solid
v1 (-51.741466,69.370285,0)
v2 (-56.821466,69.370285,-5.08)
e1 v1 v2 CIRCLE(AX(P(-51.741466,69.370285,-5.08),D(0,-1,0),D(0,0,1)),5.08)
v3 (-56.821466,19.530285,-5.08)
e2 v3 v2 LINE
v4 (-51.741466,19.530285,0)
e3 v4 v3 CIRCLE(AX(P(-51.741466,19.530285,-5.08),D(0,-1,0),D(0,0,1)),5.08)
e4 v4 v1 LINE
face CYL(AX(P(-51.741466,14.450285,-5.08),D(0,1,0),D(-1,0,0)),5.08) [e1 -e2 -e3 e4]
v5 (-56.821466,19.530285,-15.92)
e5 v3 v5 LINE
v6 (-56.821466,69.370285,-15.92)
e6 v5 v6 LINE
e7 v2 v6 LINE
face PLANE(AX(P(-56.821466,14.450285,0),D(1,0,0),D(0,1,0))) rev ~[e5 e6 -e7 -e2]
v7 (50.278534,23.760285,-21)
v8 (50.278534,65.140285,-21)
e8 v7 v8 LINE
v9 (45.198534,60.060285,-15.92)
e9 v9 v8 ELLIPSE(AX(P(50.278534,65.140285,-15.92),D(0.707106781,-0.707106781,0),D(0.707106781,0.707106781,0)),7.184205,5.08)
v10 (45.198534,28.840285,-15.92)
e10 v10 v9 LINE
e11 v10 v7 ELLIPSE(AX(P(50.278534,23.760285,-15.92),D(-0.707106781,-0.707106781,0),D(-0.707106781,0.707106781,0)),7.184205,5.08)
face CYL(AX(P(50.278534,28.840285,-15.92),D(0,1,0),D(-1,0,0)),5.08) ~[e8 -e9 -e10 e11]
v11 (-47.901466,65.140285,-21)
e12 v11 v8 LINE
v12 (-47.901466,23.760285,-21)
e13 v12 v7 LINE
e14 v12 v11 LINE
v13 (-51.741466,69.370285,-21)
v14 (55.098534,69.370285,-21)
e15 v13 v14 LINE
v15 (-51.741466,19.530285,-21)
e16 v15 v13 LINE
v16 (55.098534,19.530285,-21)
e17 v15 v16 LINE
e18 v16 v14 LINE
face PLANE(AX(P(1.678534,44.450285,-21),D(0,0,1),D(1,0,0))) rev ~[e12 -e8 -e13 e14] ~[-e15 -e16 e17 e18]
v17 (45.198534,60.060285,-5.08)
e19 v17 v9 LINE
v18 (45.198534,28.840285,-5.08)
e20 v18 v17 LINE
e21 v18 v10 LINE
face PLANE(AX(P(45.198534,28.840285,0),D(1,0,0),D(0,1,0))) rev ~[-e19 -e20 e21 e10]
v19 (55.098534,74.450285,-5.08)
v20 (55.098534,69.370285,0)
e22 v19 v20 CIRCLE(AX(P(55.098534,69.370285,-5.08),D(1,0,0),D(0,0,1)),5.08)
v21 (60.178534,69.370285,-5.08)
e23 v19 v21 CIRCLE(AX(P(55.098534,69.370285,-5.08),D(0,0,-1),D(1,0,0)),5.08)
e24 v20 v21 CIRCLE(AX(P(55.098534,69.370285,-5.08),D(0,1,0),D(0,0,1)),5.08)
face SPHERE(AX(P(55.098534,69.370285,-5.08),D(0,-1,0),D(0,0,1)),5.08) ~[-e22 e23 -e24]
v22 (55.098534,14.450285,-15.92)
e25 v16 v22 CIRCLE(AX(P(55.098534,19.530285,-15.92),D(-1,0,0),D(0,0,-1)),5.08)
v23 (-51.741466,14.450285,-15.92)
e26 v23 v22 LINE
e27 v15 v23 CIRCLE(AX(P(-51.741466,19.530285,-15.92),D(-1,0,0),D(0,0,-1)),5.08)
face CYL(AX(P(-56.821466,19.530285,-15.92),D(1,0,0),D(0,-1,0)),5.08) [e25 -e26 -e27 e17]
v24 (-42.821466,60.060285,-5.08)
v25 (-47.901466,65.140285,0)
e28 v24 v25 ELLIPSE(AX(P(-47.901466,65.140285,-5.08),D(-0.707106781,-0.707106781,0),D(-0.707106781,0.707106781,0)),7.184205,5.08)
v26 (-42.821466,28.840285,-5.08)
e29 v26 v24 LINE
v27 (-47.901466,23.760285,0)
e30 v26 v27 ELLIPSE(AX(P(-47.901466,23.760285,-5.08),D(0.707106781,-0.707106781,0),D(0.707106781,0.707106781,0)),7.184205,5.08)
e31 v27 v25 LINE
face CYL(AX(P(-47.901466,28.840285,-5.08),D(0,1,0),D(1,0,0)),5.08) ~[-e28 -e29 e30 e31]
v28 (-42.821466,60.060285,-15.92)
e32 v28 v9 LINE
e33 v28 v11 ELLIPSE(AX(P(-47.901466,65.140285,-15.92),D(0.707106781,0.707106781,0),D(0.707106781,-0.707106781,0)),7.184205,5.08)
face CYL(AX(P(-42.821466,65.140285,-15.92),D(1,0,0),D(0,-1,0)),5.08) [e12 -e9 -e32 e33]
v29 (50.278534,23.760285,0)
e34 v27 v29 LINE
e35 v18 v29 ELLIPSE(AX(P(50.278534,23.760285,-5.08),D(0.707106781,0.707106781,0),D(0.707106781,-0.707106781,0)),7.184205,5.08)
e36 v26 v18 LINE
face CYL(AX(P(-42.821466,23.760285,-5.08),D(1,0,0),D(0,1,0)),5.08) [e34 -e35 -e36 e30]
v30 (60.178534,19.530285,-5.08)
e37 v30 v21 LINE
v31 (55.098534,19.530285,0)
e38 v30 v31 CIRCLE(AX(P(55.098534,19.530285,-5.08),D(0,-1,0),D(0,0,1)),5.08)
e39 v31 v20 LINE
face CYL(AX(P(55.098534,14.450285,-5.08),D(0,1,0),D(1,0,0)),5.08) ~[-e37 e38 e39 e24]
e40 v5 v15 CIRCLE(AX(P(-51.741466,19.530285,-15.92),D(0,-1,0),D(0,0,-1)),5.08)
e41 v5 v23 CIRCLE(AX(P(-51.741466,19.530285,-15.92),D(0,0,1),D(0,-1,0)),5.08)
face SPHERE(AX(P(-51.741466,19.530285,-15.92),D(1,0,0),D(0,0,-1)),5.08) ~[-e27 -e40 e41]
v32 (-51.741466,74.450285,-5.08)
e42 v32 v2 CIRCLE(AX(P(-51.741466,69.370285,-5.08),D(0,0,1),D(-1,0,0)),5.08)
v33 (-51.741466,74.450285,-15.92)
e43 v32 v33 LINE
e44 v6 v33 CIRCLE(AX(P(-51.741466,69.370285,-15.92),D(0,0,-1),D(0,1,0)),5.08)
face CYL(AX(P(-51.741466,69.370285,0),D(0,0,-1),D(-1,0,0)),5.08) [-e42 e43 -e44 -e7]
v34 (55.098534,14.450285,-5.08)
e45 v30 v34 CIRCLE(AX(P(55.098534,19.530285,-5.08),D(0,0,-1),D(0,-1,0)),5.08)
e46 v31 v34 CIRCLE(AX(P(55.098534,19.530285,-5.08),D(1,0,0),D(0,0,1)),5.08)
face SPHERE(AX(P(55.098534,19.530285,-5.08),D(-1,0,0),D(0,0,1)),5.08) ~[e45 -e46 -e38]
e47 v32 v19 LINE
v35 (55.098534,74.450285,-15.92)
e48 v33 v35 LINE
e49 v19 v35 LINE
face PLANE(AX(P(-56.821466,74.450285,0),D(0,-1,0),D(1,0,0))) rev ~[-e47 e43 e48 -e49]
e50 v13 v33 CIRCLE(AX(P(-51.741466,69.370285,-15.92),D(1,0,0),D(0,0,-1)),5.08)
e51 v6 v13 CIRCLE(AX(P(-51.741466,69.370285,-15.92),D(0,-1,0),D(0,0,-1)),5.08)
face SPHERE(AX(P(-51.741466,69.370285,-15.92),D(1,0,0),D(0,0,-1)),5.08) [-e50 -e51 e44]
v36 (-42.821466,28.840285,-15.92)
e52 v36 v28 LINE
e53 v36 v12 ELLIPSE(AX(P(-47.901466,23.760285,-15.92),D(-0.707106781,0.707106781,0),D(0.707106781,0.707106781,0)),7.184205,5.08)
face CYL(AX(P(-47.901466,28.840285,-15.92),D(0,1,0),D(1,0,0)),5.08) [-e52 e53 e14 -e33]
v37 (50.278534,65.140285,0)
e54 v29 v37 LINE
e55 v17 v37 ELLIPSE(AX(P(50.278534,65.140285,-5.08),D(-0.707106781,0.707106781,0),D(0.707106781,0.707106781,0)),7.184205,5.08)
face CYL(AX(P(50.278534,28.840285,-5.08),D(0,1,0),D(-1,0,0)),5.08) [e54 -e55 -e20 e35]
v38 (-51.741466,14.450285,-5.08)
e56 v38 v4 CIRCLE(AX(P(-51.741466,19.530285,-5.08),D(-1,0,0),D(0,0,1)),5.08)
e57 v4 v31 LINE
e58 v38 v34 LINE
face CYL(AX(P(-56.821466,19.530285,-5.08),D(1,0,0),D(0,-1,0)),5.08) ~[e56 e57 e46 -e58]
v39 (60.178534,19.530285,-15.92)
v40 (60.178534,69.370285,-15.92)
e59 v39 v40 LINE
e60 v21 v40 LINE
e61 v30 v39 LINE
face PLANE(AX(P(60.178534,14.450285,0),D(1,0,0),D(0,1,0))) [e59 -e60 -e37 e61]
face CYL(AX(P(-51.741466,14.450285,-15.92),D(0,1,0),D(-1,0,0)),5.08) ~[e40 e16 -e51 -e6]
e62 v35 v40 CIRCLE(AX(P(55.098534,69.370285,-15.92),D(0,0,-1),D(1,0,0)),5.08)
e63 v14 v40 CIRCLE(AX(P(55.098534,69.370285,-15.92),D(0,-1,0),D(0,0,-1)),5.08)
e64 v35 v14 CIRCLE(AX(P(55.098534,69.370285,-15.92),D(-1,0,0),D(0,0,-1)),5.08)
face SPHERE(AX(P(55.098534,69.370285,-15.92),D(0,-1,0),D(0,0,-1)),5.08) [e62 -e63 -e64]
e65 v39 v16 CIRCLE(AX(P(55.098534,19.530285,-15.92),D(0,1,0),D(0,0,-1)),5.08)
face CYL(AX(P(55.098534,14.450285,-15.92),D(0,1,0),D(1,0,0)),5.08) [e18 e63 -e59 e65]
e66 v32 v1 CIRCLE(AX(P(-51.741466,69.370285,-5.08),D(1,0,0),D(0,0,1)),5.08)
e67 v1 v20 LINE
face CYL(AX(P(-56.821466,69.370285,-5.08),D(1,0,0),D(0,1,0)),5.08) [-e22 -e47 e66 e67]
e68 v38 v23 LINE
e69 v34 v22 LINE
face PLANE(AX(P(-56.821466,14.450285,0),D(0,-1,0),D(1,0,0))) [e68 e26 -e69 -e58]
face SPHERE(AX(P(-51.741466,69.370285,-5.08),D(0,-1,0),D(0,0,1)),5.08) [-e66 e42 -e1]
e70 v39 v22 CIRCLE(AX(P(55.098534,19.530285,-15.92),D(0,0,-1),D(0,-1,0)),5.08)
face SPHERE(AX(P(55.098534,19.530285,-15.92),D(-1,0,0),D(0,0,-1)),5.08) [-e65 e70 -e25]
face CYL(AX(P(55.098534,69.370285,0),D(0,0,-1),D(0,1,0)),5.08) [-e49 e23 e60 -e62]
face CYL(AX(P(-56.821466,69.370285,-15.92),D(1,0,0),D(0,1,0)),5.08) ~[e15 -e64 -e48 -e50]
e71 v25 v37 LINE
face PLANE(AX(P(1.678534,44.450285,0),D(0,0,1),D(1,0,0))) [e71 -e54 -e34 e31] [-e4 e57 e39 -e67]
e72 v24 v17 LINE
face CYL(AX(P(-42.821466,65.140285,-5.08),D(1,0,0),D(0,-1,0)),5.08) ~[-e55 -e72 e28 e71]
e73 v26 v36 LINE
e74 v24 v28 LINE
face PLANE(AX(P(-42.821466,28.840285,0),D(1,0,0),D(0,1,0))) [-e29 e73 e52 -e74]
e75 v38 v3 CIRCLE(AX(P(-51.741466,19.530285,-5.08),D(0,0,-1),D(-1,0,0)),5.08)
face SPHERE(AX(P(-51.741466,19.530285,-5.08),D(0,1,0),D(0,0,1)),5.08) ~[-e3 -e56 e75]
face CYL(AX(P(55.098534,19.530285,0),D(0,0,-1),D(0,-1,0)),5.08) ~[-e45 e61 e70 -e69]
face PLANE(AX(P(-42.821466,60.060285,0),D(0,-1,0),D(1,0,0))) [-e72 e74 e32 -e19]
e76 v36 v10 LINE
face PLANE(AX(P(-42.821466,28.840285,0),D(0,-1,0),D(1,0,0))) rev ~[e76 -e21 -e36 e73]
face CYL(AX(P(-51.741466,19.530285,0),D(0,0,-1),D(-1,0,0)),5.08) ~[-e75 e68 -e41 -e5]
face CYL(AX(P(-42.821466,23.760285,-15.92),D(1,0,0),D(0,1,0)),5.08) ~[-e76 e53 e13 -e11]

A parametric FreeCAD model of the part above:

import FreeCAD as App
import Part
import Sketcher
Q = App.Units.Quantity


def edges_at(feature, points):
    """Names of the edges that pass closest to the given points."""
    edges = feature.Shape.Edges
    near = lambda p: min(range(len(edges)), key=lambda i: edges[i].distToShape(Part.Vertex(*p))[0])
    return sorted({f"Edge{near(p) + 1}" for p in points})


def add_polygon(sketch, points):
    """Adds a closed chain of lines whose ends are joined by coincident constraints."""
    first, n = sketch.GeometryCount, len(points)
    for a, b in zip(points, points[1:] + points[:1]):
        sketch.addGeometry(Part.LineSegment(App.Vector(*a, 0), App.Vector(*b, 0)), False)
    for i in range(n):
        sketch.addConstraint(Sketcher.Constraint("Coincident", first + i, 2, first + (i + 1) % n, 1))

doc = App.newDocument("Part")
body = doc.addObject("PartDesign::Body", "Body")

# Sketch on XY plane
sketch1 = body.newObject("Sketcher::SketchObject", "Sketch")
sketch1.AttachmentSupport = (doc.getObject("XY_Plane"), [""])
sketch1.MapMode = "FlatFace"
add_polygon(sketch1, [(-57, 74), (-57, 14), (60, 14), (60, 74)])  # lines 0-3
add_polygon(sketch1, [(45, 29), (-43, 29), (-43, 60), (45, 60)])  # lines 4-7
sketch1.addConstraint([
    Sketcher.Constraint("Vertical", 0),
    Sketcher.Constraint("Horizontal", 1),
    Sketcher.Constraint("Vertical", 2),
    Sketcher.Constraint("Horizontal", 3),
    Sketcher.Constraint("Horizontal", 4),
    Sketcher.Constraint("Vertical", 5),
    Sketcher.Constraint("Horizontal", 6),
    Sketcher.Constraint("Vertical", 7),
    Sketcher.Constraint("DistanceX", 1, 1, 1, 2, Q("117 mm")),
    Sketcher.Constraint("DistanceY", 0, 2, 0, 1, Q("60 mm")),
    Sketcher.Constraint("DistanceX", 0, 2, 4, 2, Q("14 mm")),
    Sketcher.Constraint("DistanceX", 4, 2, 4, 1, Q("88.02 mm")),
    Sketcher.Constraint("DistanceY", 5, 1, 5, 2, Q("31.22 mm")),
    Sketcher.Constraint("DistanceY", 0, 2, 4, 2, Q("14.39 mm")),
    Sketcher.Constraint("DistanceX", 0, 2, -1, 1, Q("56.821466 mm")),
    Sketcher.Constraint("DistanceY", -1, 1, 0, 2, Q("14.450285 mm")),
])
pad1 = body.newObject("PartDesign::Pad", "Pad")
pad1.Profile = sketch1
pad1.Length = 21
pad1.Reversed = True
doc.recompute()

fillet = body.newObject("PartDesign::Fillet", "Fillet")
fillet.Base = (pad1, edges_at(pad1, [
    (-56.821, 44.45, 0),
    (1.679, 14.45, 0),
    (60.179, 44.45, 0),
    (1.679, 74.45, 0),
    (1.679, 14.45, -21),
    (60.179, 44.45, -21),
    (1.679, 74.45, -21),
    (-56.821, 44.45, -21),
    (-56.821, 14.45, -10.5),
    (-56.821, 74.45, -10.5),
    (60.179, 14.45, -10.5),
    (60.179, 74.45, -10.5),
    (45.199, 44.45, -21),
    (1.189, 60.06, -21),
    (-42.821, 44.45, -21),
    (1.189, 28.84, -21),
    (1.189, 28.84, 0),
    (-42.821, 44.45, 0),
    (45.199, 44.45, 0),
    (1.189, 60.06, 0),
]))
fillet.Radius = 5.08

doc.recompute()
